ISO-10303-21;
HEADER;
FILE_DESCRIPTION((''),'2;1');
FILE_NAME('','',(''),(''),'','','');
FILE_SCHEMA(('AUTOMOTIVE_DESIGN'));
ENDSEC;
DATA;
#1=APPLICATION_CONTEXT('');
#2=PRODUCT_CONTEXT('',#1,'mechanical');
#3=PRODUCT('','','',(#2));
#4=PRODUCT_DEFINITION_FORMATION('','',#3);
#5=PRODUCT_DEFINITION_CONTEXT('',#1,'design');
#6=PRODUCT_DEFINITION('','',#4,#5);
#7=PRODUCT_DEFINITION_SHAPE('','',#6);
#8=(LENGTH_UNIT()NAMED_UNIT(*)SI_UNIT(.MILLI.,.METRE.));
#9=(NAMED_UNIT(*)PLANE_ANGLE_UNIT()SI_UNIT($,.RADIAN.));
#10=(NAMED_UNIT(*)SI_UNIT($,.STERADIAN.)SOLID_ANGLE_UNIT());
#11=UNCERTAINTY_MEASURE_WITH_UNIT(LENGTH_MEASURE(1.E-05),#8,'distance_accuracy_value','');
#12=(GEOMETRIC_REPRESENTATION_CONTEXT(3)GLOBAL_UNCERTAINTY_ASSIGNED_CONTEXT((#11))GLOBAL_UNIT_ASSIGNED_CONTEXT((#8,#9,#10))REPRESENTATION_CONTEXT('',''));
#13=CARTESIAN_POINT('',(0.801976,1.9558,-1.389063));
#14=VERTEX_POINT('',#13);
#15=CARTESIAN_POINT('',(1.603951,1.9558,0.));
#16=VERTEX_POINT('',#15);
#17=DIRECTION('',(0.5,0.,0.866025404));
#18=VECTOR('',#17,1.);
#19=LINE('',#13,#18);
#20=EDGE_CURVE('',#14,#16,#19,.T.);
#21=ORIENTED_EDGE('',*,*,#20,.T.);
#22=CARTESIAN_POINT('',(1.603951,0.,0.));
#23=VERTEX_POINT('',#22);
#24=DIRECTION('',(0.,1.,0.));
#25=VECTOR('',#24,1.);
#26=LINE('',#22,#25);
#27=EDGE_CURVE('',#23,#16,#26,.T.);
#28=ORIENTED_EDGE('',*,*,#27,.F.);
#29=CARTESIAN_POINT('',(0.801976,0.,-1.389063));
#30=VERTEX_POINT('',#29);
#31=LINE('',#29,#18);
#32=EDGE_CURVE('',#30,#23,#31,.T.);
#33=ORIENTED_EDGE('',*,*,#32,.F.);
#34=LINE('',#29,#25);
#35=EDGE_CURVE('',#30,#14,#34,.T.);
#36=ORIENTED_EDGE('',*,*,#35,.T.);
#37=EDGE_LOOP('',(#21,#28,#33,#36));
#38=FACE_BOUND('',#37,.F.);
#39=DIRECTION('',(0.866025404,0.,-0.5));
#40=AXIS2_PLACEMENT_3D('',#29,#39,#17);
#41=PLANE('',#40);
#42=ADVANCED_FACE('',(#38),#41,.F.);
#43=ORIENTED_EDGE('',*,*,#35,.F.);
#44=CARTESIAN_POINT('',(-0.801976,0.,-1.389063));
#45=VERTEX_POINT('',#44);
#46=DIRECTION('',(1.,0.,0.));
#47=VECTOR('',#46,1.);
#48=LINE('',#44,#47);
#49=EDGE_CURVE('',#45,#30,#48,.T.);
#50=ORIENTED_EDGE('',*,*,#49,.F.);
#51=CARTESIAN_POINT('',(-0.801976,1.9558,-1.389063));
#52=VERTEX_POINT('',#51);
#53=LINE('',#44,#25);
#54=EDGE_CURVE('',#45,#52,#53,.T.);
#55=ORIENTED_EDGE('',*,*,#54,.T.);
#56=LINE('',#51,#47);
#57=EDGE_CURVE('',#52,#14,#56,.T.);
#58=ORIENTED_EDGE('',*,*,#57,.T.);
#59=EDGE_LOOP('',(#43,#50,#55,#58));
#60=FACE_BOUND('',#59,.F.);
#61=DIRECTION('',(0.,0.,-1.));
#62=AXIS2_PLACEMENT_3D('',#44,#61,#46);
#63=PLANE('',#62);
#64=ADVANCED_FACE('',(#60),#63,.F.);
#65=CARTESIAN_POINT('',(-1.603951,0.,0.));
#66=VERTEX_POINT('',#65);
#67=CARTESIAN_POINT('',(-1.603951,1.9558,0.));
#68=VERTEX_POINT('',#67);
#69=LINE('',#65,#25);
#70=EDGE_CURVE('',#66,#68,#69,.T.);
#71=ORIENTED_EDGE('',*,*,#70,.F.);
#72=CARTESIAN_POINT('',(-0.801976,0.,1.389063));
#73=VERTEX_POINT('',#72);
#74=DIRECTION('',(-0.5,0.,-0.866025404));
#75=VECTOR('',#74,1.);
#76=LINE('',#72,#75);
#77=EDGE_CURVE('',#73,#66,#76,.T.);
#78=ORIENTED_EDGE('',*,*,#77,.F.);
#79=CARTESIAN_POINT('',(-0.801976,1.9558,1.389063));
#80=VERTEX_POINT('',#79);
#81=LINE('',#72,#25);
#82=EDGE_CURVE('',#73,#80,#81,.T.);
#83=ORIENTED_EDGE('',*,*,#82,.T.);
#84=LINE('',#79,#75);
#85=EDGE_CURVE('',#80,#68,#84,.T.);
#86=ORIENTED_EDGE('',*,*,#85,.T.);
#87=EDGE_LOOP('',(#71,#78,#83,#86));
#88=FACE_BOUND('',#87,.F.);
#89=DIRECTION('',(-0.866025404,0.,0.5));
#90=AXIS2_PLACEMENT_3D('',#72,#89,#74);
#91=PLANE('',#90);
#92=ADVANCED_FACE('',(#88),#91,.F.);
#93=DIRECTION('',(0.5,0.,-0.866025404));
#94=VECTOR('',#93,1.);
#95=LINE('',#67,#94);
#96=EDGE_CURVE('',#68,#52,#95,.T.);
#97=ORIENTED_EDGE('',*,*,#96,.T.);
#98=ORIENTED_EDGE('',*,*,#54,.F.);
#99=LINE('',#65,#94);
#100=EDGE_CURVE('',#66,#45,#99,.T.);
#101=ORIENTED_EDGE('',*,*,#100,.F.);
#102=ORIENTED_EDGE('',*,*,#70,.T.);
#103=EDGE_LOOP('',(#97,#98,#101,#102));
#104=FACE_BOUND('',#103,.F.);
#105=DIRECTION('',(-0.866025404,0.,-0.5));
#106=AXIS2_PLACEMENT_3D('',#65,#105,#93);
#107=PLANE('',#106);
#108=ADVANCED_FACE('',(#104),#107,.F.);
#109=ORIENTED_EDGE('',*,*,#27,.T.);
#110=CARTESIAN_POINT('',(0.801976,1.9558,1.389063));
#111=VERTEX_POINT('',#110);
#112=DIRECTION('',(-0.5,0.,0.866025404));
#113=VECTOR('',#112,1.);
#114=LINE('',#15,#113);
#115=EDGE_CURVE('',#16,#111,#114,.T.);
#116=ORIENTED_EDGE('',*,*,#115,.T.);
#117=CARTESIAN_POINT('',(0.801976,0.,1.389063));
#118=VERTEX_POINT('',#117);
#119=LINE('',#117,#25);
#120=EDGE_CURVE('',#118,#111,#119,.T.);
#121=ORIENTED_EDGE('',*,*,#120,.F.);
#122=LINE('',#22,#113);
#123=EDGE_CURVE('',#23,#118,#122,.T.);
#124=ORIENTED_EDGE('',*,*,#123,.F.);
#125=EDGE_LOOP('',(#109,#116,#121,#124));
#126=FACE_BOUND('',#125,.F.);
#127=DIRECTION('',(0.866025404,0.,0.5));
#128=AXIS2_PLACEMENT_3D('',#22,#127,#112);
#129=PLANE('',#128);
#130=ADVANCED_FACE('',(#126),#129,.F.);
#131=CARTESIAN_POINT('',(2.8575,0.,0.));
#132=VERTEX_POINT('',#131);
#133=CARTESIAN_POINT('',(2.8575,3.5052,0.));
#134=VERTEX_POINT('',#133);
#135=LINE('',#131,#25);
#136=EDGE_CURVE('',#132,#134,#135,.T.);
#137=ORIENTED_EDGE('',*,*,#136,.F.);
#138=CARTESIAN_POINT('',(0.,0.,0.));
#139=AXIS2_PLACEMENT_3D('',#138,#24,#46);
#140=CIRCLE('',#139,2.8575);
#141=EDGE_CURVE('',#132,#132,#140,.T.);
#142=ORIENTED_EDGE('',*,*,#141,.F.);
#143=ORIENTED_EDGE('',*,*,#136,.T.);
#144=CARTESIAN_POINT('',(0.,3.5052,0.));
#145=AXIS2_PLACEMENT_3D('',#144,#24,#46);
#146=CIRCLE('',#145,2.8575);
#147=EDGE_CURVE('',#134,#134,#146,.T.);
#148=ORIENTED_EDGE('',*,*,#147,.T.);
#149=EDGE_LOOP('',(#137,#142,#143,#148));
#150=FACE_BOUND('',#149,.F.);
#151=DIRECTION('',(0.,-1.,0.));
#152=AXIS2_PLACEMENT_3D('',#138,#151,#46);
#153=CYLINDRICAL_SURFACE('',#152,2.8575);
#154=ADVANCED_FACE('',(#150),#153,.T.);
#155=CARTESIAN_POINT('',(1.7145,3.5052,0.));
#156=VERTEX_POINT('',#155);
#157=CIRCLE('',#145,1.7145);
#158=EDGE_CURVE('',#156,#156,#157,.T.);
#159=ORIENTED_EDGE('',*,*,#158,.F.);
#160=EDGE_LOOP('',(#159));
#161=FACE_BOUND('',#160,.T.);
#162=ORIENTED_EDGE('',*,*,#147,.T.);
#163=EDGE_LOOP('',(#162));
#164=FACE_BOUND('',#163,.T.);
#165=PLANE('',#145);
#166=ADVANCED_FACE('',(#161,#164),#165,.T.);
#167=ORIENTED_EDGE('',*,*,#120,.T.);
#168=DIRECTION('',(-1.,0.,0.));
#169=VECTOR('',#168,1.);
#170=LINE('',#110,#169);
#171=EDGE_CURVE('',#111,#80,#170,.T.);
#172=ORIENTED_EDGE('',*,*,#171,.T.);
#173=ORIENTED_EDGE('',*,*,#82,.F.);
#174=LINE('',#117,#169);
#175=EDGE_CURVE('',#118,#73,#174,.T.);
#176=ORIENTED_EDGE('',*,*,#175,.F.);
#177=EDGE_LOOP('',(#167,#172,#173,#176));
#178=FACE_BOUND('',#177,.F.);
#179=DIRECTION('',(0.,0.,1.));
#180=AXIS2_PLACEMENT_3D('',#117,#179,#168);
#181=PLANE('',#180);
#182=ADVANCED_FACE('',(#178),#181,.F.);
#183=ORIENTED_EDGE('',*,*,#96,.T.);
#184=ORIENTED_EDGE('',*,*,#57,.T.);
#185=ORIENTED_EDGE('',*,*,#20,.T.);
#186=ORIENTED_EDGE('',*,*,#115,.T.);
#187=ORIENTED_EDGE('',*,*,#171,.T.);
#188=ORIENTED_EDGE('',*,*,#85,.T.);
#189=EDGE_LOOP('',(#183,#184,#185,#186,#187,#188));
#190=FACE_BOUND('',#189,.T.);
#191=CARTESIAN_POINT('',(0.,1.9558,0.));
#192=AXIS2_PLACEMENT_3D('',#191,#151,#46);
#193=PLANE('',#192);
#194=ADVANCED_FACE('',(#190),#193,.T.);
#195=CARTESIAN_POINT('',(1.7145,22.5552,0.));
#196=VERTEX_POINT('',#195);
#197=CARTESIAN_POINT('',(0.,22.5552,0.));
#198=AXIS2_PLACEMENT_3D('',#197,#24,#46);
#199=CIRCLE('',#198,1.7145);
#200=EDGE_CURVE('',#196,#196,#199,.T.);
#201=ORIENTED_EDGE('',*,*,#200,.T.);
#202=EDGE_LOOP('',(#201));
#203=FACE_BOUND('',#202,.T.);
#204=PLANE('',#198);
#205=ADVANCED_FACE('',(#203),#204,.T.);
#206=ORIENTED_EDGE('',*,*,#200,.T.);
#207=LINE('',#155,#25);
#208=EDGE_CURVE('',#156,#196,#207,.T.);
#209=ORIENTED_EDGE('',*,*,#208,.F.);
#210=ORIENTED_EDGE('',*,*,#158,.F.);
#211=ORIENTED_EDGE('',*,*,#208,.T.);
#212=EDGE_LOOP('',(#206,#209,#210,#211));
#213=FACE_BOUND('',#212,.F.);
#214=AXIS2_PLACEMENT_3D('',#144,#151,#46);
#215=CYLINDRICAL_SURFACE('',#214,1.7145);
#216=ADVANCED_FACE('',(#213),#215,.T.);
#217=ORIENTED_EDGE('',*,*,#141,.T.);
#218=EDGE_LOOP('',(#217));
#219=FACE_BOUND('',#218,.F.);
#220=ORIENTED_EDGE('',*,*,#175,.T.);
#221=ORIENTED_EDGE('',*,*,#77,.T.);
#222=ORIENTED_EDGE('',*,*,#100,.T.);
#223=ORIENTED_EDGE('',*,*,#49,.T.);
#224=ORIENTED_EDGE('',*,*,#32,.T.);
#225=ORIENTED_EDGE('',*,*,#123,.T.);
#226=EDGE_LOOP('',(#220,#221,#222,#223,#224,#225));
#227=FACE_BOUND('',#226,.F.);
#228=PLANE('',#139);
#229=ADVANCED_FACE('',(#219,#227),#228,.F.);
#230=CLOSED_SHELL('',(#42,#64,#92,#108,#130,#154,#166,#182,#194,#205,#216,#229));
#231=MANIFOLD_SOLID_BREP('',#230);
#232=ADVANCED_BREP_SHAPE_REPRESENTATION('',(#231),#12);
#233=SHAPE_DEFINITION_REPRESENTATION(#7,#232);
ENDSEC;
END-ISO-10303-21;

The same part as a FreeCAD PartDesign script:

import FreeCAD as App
import Part
import Sketcher
Q = App.Units.Quantity

doc = App.newDocument("Part")
body = doc.addObject("PartDesign::Body", "Body")

sketch1 = doc.addObject("Sketcher::SketchObject", "Sketch")
body.addObject(sketch1)
sketch1.AttachmentSupport = (doc.XZ_Plane, [""])
sketch1.MapMode = "FlatFace"
sketch1.addGeometry(Part.Circle(App.Vector(0, 0, 0), App.Vector(0, 0, 1), 2.9), False)
sketch1.addConstraint([
    Sketcher.Constraint("Coincident", 0, 3, -1, 1),
    Sketcher.Constraint("Diameter", 0, Q("0.225 in")),
])
pad1 = doc.addObject("PartDesign::Pad", "Pad")
body.addObject(pad1)
pad1.Profile = sketch1
pad1.Length = Q("0.138 in")
pad1.Reversed = True

sketch2 = doc.addObject("Sketcher::SketchObject", "Sketch001")
body.addObject(sketch2)
sketch2.AttachmentSupport = (doc.XZ_Plane, [""])
sketch2.MapMode = "FlatFace"
sketch2.addGeometry([
    Part.LineSegment(App.Vector(1.6, 0, 0), App.Vector(0.8, 1.4, 0)),
    Part.LineSegment(App.Vector(0.8, 1.4, 0), App.Vector(-0.8, 1.4, 0)),
    Part.LineSegment(App.Vector(-0.8, 1.4, 0), App.Vector(-1.6, 0, 0)),
    Part.LineSegment(App.Vector(-1.6, 0, 0), App.Vector(-0.8, -1.4, 0)),
    Part.LineSegment(App.Vector(-0.8, -1.4, 0), App.Vector(0.8, -1.4, 0)),
    Part.LineSegment(App.Vector(0.8, -1.4, 0), App.Vector(1.6, 0, 0)),
], False)
sketch2.addConstraint([
    Sketcher.Constraint("Coincident", 0, 2, 1, 1),
    Sketcher.Constraint("Coincident", 1, 2, 2, 1),
    Sketcher.Constraint("Coincident", 2, 2, 3, 1),
    Sketcher.Constraint("Coincident", 3, 2, 4, 1),
    Sketcher.Constraint("Coincident", 4, 2, 5, 1),
    Sketcher.Constraint("Coincident", 5, 2, 0, 1),
    Sketcher.Constraint("Horizontal", 1),
    Sketcher.Constraint("Horizontal", 4),
    Sketcher.Constraint("Symmetric", 0, 2, 3, 2, -1, 1),
    Sketcher.Constraint("Symmetric", 2, 2, 5, 2, -1, 1),
    Sketcher.Constraint("PointOnObject", 2, 2, -1),
    Sketcher.Constraint("Parallel", 2, 5),
    Sketcher.Constraint("Vertical", 1, 2, 3, 2),
    Sketcher.Constraint("Angle", 0, Q("120 deg")),
    Sketcher.Constraint("DistanceY", 3, 2, 1, 2, Q("0.109375 in")),
    Sketcher.Constraint("DistanceX", 1, 2, 1, 1, 1.603951),
])
pocket1 = doc.addObject("PartDesign::Pocket", "Pocket")
body.addObject(pocket1)
pocket1.Profile = sketch2
pocket1.Length = Q("0.077 in")

sketch3 = doc.addObject("Sketcher::SketchObject", "Sketch002")
body.addObject(sketch3)
sketch3.AttachmentSupport = (doc.XZ_Plane, [""])
sketch3.MapMode = "FlatFace"
sketch3.AttachmentOffset = App.Placement(App.Vector(0, 0, -0.138 * 25.4), App.Rotation())
sketch3.addGeometry(Part.Circle(App.Vector(0, 0, 0), App.Vector(0, 0, 1), 1.7), False)
sketch3.addConstraint([
    Sketcher.Constraint("Coincident", 0, 3, -1, 1),
    Sketcher.Constraint("Diameter", 0, Q("0.135 in")),
])
pad2 = doc.addObject("PartDesign::Pad", "Pad001")
body.addObject(pad2)
pad2.Profile = sketch3
pad2.Length = Q("0.75 in")
pad2.Reversed = True

doc.recompute()
